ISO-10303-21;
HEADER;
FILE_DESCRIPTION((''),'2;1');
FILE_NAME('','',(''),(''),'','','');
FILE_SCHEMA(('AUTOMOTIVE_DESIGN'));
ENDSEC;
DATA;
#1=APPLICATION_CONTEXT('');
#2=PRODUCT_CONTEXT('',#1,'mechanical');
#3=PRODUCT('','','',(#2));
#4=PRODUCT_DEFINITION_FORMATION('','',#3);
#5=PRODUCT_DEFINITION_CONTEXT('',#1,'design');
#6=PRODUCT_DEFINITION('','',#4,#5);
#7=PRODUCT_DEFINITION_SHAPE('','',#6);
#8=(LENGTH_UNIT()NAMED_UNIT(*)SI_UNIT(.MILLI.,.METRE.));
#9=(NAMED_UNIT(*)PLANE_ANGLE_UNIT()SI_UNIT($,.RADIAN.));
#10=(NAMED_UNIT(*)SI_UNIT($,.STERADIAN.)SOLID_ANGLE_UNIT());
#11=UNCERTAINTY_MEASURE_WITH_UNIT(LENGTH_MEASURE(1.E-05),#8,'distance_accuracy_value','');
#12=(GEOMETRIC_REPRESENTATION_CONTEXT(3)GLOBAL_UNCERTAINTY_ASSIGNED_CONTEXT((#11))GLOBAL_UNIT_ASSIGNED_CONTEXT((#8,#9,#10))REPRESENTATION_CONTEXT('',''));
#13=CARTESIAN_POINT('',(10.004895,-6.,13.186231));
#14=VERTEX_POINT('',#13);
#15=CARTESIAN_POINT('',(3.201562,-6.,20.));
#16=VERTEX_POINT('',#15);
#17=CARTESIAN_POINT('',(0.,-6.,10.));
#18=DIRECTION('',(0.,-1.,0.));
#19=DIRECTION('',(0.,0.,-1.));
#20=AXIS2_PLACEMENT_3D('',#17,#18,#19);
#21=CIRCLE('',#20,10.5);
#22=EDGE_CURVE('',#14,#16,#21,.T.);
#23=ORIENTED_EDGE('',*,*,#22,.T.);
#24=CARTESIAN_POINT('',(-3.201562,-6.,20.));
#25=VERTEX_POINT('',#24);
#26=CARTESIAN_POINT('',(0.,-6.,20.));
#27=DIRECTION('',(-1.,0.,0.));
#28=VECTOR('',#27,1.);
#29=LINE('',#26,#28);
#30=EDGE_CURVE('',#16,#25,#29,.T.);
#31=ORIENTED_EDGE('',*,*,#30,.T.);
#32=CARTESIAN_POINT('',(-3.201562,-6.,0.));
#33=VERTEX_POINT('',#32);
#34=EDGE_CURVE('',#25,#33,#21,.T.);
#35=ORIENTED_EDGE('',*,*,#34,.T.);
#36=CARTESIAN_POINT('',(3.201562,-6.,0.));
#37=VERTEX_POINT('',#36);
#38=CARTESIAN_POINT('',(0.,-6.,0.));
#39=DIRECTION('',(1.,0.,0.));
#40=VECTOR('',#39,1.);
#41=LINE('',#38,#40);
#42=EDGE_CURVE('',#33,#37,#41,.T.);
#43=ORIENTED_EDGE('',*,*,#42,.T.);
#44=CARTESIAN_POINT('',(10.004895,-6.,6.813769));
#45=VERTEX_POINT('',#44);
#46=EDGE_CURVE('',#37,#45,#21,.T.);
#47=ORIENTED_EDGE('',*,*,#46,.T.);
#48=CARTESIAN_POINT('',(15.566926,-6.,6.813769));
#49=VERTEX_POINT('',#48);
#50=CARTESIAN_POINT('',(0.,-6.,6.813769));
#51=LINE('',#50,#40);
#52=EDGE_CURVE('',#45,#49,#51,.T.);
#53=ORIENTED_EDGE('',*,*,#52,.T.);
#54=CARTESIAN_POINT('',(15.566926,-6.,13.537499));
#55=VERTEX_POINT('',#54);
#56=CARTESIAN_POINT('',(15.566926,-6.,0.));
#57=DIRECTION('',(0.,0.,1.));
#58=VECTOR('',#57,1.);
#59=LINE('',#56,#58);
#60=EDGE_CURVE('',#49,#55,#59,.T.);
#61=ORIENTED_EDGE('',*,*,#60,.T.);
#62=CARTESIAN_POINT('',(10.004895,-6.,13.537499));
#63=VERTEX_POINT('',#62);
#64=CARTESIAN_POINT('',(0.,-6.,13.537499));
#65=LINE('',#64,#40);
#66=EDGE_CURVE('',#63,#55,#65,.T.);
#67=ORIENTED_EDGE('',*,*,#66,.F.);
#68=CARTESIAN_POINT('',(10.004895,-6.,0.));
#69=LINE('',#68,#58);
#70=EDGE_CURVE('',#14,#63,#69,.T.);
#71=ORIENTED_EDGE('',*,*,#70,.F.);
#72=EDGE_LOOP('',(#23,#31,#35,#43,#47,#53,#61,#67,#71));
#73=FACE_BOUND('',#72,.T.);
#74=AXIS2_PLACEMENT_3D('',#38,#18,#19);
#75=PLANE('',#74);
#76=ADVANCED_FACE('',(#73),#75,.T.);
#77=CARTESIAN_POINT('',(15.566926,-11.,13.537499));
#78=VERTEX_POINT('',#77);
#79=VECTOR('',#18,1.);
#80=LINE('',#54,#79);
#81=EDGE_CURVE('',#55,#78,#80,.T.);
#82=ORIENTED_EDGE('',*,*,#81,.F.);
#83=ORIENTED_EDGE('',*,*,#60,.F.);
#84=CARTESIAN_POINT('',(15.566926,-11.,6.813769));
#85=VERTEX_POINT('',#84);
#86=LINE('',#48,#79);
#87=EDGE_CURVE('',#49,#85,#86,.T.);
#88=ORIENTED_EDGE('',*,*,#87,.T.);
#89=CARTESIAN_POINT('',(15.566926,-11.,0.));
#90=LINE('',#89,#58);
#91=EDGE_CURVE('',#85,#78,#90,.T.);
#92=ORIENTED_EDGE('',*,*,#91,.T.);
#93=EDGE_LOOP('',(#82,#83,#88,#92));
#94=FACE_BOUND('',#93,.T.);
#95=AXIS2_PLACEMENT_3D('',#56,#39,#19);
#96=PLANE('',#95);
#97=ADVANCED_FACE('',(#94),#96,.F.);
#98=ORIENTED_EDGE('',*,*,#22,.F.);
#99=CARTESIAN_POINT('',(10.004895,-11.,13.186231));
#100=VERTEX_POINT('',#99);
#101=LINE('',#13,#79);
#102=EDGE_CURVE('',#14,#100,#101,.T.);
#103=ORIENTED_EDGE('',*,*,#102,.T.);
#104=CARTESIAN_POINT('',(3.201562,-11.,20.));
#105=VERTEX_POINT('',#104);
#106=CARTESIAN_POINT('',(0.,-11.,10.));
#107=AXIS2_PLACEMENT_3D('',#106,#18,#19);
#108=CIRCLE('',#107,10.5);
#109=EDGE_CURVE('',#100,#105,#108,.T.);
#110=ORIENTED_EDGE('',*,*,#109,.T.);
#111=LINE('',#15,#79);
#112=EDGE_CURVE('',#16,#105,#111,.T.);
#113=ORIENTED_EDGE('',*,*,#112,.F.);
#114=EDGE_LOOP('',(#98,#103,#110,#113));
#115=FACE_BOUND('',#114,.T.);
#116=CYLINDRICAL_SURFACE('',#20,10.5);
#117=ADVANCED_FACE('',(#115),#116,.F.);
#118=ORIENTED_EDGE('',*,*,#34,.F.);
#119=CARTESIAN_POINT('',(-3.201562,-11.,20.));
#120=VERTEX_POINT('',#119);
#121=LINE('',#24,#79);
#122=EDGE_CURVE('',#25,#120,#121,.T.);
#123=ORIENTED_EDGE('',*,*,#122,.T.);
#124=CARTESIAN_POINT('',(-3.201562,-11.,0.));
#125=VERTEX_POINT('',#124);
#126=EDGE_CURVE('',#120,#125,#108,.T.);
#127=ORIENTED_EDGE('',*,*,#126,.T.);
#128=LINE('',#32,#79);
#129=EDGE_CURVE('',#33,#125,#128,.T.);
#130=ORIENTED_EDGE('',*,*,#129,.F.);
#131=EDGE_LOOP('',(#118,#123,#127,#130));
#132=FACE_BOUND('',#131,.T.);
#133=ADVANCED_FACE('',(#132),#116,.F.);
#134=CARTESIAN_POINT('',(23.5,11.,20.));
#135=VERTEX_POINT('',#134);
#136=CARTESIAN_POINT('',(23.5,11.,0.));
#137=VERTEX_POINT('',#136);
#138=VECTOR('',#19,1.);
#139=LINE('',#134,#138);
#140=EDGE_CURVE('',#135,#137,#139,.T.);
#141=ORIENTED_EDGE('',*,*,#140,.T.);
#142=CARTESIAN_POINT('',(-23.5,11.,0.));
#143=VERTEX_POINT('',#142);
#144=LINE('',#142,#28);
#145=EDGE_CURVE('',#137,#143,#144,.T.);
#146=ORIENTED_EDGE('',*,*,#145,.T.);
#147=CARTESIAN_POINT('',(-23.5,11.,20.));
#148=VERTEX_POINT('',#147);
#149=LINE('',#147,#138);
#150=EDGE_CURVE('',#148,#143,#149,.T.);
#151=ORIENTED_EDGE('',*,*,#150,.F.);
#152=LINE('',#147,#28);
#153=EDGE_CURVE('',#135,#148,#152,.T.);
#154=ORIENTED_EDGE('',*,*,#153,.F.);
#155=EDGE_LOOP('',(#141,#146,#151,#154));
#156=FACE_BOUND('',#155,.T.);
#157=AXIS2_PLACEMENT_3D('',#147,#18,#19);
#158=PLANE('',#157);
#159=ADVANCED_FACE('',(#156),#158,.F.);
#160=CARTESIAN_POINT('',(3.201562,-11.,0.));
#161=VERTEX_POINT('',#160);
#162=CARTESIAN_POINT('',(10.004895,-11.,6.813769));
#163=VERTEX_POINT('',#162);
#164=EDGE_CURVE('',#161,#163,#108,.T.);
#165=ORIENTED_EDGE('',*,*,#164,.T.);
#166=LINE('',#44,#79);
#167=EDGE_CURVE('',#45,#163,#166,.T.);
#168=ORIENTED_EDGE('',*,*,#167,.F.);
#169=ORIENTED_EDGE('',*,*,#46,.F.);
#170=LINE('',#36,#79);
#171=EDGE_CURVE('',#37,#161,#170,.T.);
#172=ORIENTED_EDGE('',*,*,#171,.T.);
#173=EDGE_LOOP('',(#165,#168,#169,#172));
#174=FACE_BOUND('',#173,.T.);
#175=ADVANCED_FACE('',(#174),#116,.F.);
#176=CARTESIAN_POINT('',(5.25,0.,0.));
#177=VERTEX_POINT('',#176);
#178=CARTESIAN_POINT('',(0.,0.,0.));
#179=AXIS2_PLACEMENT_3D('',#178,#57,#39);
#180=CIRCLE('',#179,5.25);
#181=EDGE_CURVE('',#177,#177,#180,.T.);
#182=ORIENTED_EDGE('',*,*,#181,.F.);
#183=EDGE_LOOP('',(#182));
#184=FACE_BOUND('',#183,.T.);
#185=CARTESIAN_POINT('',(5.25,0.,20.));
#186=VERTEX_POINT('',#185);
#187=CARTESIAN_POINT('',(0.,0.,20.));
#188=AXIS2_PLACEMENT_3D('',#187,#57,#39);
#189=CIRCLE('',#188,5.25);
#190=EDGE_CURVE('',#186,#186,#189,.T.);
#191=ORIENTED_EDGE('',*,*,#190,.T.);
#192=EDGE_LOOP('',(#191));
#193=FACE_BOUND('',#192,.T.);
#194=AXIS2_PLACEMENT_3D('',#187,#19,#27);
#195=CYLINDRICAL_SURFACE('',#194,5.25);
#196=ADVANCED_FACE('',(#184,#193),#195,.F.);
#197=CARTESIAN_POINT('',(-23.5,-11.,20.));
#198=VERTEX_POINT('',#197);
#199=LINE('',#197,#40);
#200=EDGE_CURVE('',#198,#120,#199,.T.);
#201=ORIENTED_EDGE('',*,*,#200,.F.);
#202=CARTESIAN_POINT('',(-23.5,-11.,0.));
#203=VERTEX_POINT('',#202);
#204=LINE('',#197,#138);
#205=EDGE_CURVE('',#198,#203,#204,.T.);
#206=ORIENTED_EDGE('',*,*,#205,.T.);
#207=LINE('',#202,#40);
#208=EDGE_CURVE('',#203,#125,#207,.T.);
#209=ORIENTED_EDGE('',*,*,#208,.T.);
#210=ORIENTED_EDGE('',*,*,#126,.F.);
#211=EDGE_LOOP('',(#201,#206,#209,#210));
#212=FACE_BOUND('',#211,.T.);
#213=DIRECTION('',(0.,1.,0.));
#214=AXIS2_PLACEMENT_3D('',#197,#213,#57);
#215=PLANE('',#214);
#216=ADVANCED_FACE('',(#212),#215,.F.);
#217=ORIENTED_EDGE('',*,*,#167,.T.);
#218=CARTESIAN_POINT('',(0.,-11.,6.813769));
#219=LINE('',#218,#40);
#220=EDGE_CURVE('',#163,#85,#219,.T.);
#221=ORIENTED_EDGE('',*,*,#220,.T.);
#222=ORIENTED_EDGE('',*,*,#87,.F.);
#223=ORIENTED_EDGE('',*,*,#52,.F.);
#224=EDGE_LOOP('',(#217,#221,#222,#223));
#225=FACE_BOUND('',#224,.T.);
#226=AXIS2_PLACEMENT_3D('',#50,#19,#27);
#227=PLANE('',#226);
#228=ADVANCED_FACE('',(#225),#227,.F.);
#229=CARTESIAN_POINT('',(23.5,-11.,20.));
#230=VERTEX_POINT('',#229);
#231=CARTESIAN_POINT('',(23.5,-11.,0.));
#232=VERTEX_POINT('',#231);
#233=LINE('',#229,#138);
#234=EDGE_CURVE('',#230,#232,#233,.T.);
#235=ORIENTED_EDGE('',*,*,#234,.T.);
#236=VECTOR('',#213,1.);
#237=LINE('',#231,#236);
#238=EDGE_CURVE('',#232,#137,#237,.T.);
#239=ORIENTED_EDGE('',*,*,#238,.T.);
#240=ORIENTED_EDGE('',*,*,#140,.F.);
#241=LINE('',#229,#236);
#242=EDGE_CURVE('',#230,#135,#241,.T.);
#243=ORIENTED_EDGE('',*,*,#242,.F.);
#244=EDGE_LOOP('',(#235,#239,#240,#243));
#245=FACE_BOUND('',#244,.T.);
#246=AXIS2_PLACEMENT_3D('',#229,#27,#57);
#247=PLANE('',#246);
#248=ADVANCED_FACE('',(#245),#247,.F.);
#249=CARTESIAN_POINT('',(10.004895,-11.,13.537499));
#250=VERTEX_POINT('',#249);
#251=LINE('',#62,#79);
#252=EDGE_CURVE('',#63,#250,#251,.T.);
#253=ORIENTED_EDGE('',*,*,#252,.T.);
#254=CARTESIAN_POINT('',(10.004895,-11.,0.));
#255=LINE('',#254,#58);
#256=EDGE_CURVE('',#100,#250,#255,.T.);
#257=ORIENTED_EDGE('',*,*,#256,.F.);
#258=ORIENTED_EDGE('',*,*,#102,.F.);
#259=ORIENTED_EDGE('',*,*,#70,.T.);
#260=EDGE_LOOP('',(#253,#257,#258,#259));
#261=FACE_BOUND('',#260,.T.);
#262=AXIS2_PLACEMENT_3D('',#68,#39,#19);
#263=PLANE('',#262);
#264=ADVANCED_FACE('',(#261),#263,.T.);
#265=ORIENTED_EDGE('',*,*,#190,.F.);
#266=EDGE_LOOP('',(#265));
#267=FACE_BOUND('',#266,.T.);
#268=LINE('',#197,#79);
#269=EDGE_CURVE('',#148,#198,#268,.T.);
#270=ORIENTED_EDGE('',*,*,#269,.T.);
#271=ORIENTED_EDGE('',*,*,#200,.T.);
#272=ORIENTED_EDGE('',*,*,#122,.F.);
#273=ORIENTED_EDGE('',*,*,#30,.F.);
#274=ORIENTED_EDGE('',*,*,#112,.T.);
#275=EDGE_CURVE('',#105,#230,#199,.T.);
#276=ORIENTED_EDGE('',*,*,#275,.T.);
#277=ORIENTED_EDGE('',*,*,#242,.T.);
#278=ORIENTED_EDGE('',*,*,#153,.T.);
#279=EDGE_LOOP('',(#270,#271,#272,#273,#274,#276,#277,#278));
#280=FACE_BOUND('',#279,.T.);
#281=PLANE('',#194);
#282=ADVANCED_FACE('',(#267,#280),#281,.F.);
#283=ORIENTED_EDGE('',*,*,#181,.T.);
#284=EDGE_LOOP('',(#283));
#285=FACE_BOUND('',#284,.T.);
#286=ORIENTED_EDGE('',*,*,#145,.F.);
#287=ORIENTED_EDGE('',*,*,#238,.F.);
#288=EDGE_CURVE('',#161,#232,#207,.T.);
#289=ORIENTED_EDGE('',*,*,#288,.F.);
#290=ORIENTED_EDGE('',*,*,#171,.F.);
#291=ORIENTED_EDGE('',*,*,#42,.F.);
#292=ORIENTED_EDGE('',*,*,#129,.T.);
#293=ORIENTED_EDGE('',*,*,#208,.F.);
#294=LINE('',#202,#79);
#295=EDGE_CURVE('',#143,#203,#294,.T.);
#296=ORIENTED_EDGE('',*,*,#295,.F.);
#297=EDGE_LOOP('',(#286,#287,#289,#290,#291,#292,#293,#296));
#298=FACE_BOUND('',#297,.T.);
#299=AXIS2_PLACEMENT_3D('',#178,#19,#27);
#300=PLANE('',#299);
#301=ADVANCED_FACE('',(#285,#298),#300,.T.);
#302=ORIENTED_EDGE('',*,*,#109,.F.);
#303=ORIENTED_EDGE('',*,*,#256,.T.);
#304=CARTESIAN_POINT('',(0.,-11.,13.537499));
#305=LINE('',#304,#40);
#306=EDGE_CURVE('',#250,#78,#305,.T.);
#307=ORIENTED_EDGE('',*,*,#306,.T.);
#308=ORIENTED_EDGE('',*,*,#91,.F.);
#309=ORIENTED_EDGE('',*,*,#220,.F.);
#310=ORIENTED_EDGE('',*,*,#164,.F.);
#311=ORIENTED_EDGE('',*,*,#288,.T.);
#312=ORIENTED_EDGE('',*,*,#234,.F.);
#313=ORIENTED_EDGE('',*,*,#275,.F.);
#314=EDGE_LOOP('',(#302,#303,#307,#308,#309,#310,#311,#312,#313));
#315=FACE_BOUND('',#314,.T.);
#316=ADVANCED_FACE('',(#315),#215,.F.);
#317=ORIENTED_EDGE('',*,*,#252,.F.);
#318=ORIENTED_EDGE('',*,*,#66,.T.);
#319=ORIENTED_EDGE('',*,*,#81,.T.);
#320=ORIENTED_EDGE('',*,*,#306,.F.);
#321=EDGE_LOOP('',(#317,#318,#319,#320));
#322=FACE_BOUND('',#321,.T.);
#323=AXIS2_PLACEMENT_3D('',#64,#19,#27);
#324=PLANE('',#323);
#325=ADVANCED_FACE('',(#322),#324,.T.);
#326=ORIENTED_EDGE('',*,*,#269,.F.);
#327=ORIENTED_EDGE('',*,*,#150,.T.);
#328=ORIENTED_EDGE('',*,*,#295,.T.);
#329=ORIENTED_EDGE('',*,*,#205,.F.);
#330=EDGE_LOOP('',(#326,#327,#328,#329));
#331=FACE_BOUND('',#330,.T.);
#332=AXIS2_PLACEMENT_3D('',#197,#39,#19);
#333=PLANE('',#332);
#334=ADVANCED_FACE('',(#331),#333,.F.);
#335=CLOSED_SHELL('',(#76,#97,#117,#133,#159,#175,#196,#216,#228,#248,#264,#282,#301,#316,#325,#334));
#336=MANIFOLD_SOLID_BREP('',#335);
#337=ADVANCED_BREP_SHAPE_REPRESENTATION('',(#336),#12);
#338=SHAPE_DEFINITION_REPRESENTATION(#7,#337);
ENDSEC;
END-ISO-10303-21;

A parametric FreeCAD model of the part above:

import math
import FreeCAD as App
import Part
import Sketcher

doc = App.newDocument("Part")
params = doc.addObject("Spreadsheet::Sheet", "Params")
for row, (alias, value) in enumerate([
    ("sketch1_diameter", "10.5 mm"),
    ("sketch1_width", "47 mm"),
    ("sketch1_height", "22 mm"),
    ("pad1_length", "20 mm"),
    ("sketch2_radius", "10.5 mm"),
    ("pocket1_length", "5 mm"),
], start=1):
    params.set(f"A{row}", alias)
    params.set(f"B{row}", "=" + value)
    params.setAlias(f"B{row}", alias)

body = doc.addObject("PartDesign::Body", "Body")

sketch1 = body.newObject("Sketcher::SketchObject", "Sketch")
sketch1.AttachmentSupport = (doc.getObject("XY_Plane"), [""])
sketch1.MapMode = "FlatFace"
sketch1.addGeometry(Part.LineSegment(App.Vector(-23.5, 11, 0), App.Vector(-23.5, -11, 0)), False)
sketch1.addGeometry(Part.LineSegment(App.Vector(-23.5, -11, 0), App.Vector(23.5, -11, 0)), False)
sketch1.addGeometry(Part.LineSegment(App.Vector(23.5, -11, 0), App.Vector(23.5, 11, 0)), False)
sketch1.addGeometry(Part.LineSegment(App.Vector(23.5, 11, 0), App.Vector(-23.5, 11, 0)), False)
sketch1.addGeometry(Part.Circle(App.Vector(0, 0, 0), App.Vector(0, 0, 1), 5.25), False)
sketch1.addConstraint(Sketcher.Constraint("Coincident", 0, 2, 1, 1))
sketch1.addConstraint(Sketcher.Constraint("Coincident", 1, 2, 2, 1))
sketch1.addConstraint(Sketcher.Constraint("Coincident", 2, 2, 3, 1))
sketch1.addConstraint(Sketcher.Constraint("Coincident", 3, 2, 0, 1))
sketch1.addConstraint(Sketcher.Constraint("Vertical", 0))
sketch1.addConstraint(Sketcher.Constraint("Horizontal", 1))
sketch1.addConstraint(Sketcher.Constraint("Vertical", 2))
sketch1.addConstraint(Sketcher.Constraint("Horizontal", 3))
sketch1.addConstraint(Sketcher.Constraint("Coincident", 4, 3, -1, 1))
sketch1.addConstraint(Sketcher.Constraint("Symmetric", 0, 2, 2, 2, -1, 1))
sketch1.addConstraint(Sketcher.Constraint("Diameter", 4, 10.5))
sketch1.addConstraint(Sketcher.Constraint("DistanceX", 1, 1, 1, 2, 47.0))
sketch1.addConstraint(Sketcher.Constraint("DistanceY", 0, 2, 0, 1, 22.0))
sketch1.setExpression("Constraints[10]", "Params.sketch1_diameter")
sketch1.setExpression("Constraints[11]", "Params.sketch1_width")
sketch1.setExpression("Constraints[12]", "Params.sketch1_height")
pad1 = body.newObject("PartDesign::Pad", "Pad")
pad1.Profile = sketch1
pad1.setExpression("Length", "Params.pad1_length")

sketch2 = body.newObject("Sketcher::SketchObject", "Sketch001")
sketch2.AttachmentSupport = (doc.getObject("XZ_Plane"), [""])
sketch2.MapMode = "FlatFace"
sketch2.AttachmentOffset = App.Placement(App.Vector(0, 0, 11), App.Rotation())
sketch2.addGeometry(Part.ArcOfCircle(Part.Circle(App.Vector(0, 10, 0), App.Vector(0, 0, 1), 10.5), math.radians(107.75279), math.radians(252.24721)), False)
sketch2.addGeometry(Part.ArcOfCircle(Part.Circle(App.Vector(0, 10, 0), App.Vector(0, 0, 1), 10.5), math.radians(-107.75279), math.radians(-72.24721)), False)
sketch2.addGeometry(Part.ArcOfCircle(Part.Circle(App.Vector(0, 10, 0), App.Vector(0, 0, 1), 10.5), math.radians(-72.24721), math.radians(-17.664974)), False)
sketch2.addGeometry(Part.LineSegment(App.Vector(10.004895, 6.813769, 0), App.Vector(15.566926, 6.813769, 0)), False)
sketch2.addGeometry(Part.LineSegment(App.Vector(15.566926, 6.813769, 0), App.Vector(15.566926, 13.537499, 0)), False)
sketch2.addGeometry(Part.LineSegment(App.Vector(15.566926, 13.537499, 0), App.Vector(10.004895, 13.537499, 0)), False)
sketch2.addGeometry(Part.LineSegment(App.Vector(10.004895, 13.537499, 0), App.Vector(10.004895, 13.186231, 0)), False)
sketch2.addGeometry(Part.ArcOfCircle(Part.Circle(App.Vector(0, 10, 0), App.Vector(0, 0, 1), 10.5), math.radians(17.664974), math.radians(72.24721)), False)
sketch2.addGeometry(Part.ArcOfCircle(Part.Circle(App.Vector(0, 10, 0), App.Vector(0, 0, 1), 10.5), math.radians(72.24721), math.radians(107.75279)), False)
sketch2.addConstraint(Sketcher.Constraint("Tangent", 0, 2, 1, 1))
sketch2.addConstraint(Sketcher.Constraint("Tangent", 1, 2, 2, 1))
sketch2.addConstraint(Sketcher.Constraint("Coincident", 2, 2, 3, 1))
sketch2.addConstraint(Sketcher.Constraint("Coincident", 3, 2, 4, 1))
sketch2.addConstraint(Sketcher.Constraint("Coincident", 4, 2, 5, 1))
sketch2.addConstraint(Sketcher.Constraint("Coincident", 5, 2, 6, 1))
sketch2.addConstraint(Sketcher.Constraint("Coincident", 6, 2, 7, 1))
sketch2.addConstraint(Sketcher.Constraint("Tangent", 7, 2, 8, 1))
sketch2.addConstraint(Sketcher.Constraint("Tangent", 8, 2, 0, 1))
sketch2.addConstraint(Sketcher.Constraint("Horizontal", 3))
sketch2.addConstraint(Sketcher.Constraint("Vertical", 4))
sketch2.addConstraint(Sketcher.Constraint("Horizontal", 5))
sketch2.addConstraint(Sketcher.Constraint("Vertical", 6))
sketch2.addConstraint(Sketcher.Constraint("Coincident", 2, 3, 0, 3))
sketch2.addConstraint(Sketcher.Constraint("Coincident", 7, 3, 0, 3))
sketch2.addConstraint(Sketcher.Constraint("Symmetric", 0, 2, 1, 2, -1, 1))
sketch2.addConstraint(Sketcher.Constraint("Symmetric", 7, 2, 8, 2, -2))
sketch2.addConstraint(Sketcher.Constraint("Vertical", 2, 2, 5, 2))
sketch2.addConstraint(Sketcher.Constraint("Vertical", 1, 2, 7, 2))
sketch2.addConstraint(Sketcher.Constraint("Radius", 0, 10.5))
sketch2.addConstraint(Sketcher.Constraint("DistanceY", -1, 1, 0, 3, 10.0))
sketch2.addConstraint(Sketcher.Constraint("DistanceX", 3, 1, 3, 2, 5.56203))
sketch2.addConstraint(Sketcher.Constraint("DistanceY", 4, 1, 4, 2, 6.72373))
sketch2.addConstraint(Sketcher.Constraint("DistanceY", -1, 1, 4, 2, 13.537499))
sketch2.setExpression("Constraints[19]", "Params.sketch2_radius")
pocket1 = body.newObject("PartDesign::Pocket", "Pocket")
pocket1.Profile = sketch2
pocket1.setExpression("Length", "Params.pocket1_length")

doc.recompute()
